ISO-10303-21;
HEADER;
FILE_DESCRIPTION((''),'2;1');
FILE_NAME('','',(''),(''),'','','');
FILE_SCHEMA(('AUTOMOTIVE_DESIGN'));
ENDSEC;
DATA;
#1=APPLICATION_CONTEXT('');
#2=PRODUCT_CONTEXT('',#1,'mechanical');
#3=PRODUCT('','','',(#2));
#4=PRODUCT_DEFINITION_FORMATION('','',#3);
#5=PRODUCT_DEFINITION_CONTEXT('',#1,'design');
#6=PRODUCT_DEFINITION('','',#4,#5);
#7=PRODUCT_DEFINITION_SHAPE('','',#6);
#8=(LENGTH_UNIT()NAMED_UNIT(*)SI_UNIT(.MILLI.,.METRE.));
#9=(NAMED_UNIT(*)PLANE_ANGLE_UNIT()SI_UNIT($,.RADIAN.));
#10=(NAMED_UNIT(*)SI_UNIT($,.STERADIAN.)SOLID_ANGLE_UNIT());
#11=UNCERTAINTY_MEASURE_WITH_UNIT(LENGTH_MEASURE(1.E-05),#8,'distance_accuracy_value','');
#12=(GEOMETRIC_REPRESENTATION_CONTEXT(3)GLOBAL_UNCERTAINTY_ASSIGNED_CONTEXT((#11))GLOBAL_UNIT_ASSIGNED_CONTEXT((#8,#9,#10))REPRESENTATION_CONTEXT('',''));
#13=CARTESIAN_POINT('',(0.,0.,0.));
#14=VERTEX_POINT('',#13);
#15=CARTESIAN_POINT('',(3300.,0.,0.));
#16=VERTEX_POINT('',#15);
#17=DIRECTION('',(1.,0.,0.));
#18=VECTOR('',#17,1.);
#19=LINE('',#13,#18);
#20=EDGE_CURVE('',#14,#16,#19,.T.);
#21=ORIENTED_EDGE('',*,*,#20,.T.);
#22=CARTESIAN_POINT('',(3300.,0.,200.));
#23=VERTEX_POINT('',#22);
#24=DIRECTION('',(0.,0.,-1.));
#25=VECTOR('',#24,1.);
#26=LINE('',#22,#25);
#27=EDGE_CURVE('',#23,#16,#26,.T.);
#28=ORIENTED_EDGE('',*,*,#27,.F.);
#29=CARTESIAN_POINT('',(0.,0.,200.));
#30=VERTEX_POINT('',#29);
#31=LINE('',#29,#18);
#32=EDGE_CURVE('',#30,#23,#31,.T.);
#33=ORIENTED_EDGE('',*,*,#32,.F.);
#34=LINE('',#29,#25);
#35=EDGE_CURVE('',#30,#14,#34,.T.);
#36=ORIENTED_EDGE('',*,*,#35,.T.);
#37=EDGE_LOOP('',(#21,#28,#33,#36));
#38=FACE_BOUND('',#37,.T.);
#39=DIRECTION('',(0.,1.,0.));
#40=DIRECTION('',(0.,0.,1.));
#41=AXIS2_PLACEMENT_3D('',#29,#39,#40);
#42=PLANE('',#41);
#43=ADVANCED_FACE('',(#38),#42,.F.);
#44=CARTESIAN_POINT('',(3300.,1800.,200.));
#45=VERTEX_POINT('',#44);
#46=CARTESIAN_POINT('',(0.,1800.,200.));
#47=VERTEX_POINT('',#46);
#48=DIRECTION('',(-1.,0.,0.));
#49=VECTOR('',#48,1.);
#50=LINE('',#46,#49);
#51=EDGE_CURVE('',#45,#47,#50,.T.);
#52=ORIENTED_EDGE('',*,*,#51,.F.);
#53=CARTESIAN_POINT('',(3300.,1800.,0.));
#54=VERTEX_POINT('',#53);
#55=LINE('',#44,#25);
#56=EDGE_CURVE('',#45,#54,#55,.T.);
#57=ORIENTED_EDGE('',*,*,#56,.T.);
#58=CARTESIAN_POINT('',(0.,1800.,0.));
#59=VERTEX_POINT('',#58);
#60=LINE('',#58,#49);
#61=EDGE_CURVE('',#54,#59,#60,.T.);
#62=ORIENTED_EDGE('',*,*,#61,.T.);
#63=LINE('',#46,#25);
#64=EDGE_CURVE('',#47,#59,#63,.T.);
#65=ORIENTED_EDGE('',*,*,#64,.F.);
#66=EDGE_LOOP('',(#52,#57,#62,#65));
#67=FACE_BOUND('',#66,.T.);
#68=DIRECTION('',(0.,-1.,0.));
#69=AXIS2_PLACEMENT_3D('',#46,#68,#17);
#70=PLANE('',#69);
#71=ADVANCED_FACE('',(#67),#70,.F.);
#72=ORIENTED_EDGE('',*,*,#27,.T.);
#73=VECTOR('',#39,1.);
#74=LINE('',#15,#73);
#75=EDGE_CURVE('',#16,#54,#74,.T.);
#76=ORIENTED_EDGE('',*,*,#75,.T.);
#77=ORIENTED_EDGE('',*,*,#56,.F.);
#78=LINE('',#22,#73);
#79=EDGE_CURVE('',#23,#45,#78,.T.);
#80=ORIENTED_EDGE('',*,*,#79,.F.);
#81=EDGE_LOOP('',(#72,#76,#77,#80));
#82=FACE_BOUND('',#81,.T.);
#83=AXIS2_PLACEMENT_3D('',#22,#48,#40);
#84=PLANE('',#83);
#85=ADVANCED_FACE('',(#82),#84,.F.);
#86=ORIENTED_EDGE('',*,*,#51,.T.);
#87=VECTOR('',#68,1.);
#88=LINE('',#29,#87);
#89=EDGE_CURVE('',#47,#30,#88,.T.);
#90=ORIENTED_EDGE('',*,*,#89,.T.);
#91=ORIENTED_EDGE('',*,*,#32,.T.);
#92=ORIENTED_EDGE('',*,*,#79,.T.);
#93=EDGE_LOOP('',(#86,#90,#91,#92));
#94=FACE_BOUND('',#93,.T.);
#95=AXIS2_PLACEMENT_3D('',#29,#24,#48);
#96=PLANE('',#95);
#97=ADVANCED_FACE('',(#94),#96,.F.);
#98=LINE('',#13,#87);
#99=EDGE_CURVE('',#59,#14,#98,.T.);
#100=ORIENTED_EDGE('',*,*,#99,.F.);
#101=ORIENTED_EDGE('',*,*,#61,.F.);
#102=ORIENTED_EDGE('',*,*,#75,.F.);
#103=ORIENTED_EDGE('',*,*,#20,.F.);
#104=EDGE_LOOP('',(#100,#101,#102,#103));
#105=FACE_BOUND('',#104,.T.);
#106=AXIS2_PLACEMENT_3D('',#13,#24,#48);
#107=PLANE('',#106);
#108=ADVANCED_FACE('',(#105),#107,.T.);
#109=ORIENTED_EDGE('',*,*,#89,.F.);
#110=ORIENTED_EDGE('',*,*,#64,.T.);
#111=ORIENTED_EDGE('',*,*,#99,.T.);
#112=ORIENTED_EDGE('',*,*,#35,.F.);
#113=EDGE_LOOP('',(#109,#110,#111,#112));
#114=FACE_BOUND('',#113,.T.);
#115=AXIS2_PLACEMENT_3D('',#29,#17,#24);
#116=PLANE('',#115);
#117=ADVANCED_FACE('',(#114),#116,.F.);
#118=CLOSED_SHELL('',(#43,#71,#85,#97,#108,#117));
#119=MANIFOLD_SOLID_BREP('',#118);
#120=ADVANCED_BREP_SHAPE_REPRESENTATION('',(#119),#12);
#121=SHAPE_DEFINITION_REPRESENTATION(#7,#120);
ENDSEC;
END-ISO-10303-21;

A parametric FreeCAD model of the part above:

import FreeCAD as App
import Part
import Sketcher
from FreeCAD import Vector
Q = App.Units.Quantity

doc = App.newDocument("Part")
params = doc.addObject("Spreadsheet::Sheet", "Params")
for row, (alias, value) in enumerate([
    ("sketch1_width", "3300 mm"),
    ("sketch1_height", "1800 mm"),
    ("pad1_length", "200 mm"),
], start=1):
    params.set(f"A{row}", alias)
    params.set(f"B{row}", "=" + value)
    params.setAlias(f"B{row}", alias)

body = doc.addObject("PartDesign::Body", "Body")

# Sketch on XY plane
sketch1 = doc.addObject("Sketcher::SketchObject", "Sketch")
body.addObject(sketch1)
sketch1.AttachmentSupport = (doc.XY_Plane, [""])
sketch1.MapMode = "FlatFace"
sketch1.addGeometry(Part.LineSegment(Vector(0, 1800, 0), Vector(0, 0, 0)), False)
sketch1.addGeometry(Part.LineSegment(Vector(0, 0, 0), Vector(3300, 0, 0)), False)
sketch1.addGeometry(Part.LineSegment(Vector(3300, 0, 0), Vector(3300, 1800, 0)), False)
sketch1.addGeometry(Part.LineSegment(Vector(3300, 1800, 0), Vector(0, 1800, 0)), False)
sketch1.addConstraint(Sketcher.Constraint("Coincident", 0, 2, 1, 1))
sketch1.addConstraint(Sketcher.Constraint("Coincident", 1, 2, 2, 1))
sketch1.addConstraint(Sketcher.Constraint("Coincident", 2, 2, 3, 1))
sketch1.addConstraint(Sketcher.Constraint("Coincident", 3, 2, 0, 1))
sketch1.addConstraint(Sketcher.Constraint("Vertical", 0))
sketch1.addConstraint(Sketcher.Constraint("Horizontal", 1))
sketch1.addConstraint(Sketcher.Constraint("Vertical", 2))
sketch1.addConstraint(Sketcher.Constraint("Horizontal", 3))
sketch1.addConstraint(Sketcher.Constraint("Coincident", 0, 2, -1, 1))
sketch1.addConstraint(Sketcher.Constraint("DistanceX", 1, 1, 1, 2, Q("3300 mm")))
sketch1.addConstraint(Sketcher.Constraint("DistanceY", 0, 2, 0, 1, Q("1800 mm")))
sketch1.setExpression("Constraints[9]", "Params.sketch1_width")
sketch1.setExpression("Constraints[10]", "Params.sketch1_height")
pad1 = doc.addObject("PartDesign::Pad", "Pad")
body.addObject(pad1)
pad1.Profile = sketch1
pad1.setExpression("Length", "Params.pad1_length")

doc.recompute()
